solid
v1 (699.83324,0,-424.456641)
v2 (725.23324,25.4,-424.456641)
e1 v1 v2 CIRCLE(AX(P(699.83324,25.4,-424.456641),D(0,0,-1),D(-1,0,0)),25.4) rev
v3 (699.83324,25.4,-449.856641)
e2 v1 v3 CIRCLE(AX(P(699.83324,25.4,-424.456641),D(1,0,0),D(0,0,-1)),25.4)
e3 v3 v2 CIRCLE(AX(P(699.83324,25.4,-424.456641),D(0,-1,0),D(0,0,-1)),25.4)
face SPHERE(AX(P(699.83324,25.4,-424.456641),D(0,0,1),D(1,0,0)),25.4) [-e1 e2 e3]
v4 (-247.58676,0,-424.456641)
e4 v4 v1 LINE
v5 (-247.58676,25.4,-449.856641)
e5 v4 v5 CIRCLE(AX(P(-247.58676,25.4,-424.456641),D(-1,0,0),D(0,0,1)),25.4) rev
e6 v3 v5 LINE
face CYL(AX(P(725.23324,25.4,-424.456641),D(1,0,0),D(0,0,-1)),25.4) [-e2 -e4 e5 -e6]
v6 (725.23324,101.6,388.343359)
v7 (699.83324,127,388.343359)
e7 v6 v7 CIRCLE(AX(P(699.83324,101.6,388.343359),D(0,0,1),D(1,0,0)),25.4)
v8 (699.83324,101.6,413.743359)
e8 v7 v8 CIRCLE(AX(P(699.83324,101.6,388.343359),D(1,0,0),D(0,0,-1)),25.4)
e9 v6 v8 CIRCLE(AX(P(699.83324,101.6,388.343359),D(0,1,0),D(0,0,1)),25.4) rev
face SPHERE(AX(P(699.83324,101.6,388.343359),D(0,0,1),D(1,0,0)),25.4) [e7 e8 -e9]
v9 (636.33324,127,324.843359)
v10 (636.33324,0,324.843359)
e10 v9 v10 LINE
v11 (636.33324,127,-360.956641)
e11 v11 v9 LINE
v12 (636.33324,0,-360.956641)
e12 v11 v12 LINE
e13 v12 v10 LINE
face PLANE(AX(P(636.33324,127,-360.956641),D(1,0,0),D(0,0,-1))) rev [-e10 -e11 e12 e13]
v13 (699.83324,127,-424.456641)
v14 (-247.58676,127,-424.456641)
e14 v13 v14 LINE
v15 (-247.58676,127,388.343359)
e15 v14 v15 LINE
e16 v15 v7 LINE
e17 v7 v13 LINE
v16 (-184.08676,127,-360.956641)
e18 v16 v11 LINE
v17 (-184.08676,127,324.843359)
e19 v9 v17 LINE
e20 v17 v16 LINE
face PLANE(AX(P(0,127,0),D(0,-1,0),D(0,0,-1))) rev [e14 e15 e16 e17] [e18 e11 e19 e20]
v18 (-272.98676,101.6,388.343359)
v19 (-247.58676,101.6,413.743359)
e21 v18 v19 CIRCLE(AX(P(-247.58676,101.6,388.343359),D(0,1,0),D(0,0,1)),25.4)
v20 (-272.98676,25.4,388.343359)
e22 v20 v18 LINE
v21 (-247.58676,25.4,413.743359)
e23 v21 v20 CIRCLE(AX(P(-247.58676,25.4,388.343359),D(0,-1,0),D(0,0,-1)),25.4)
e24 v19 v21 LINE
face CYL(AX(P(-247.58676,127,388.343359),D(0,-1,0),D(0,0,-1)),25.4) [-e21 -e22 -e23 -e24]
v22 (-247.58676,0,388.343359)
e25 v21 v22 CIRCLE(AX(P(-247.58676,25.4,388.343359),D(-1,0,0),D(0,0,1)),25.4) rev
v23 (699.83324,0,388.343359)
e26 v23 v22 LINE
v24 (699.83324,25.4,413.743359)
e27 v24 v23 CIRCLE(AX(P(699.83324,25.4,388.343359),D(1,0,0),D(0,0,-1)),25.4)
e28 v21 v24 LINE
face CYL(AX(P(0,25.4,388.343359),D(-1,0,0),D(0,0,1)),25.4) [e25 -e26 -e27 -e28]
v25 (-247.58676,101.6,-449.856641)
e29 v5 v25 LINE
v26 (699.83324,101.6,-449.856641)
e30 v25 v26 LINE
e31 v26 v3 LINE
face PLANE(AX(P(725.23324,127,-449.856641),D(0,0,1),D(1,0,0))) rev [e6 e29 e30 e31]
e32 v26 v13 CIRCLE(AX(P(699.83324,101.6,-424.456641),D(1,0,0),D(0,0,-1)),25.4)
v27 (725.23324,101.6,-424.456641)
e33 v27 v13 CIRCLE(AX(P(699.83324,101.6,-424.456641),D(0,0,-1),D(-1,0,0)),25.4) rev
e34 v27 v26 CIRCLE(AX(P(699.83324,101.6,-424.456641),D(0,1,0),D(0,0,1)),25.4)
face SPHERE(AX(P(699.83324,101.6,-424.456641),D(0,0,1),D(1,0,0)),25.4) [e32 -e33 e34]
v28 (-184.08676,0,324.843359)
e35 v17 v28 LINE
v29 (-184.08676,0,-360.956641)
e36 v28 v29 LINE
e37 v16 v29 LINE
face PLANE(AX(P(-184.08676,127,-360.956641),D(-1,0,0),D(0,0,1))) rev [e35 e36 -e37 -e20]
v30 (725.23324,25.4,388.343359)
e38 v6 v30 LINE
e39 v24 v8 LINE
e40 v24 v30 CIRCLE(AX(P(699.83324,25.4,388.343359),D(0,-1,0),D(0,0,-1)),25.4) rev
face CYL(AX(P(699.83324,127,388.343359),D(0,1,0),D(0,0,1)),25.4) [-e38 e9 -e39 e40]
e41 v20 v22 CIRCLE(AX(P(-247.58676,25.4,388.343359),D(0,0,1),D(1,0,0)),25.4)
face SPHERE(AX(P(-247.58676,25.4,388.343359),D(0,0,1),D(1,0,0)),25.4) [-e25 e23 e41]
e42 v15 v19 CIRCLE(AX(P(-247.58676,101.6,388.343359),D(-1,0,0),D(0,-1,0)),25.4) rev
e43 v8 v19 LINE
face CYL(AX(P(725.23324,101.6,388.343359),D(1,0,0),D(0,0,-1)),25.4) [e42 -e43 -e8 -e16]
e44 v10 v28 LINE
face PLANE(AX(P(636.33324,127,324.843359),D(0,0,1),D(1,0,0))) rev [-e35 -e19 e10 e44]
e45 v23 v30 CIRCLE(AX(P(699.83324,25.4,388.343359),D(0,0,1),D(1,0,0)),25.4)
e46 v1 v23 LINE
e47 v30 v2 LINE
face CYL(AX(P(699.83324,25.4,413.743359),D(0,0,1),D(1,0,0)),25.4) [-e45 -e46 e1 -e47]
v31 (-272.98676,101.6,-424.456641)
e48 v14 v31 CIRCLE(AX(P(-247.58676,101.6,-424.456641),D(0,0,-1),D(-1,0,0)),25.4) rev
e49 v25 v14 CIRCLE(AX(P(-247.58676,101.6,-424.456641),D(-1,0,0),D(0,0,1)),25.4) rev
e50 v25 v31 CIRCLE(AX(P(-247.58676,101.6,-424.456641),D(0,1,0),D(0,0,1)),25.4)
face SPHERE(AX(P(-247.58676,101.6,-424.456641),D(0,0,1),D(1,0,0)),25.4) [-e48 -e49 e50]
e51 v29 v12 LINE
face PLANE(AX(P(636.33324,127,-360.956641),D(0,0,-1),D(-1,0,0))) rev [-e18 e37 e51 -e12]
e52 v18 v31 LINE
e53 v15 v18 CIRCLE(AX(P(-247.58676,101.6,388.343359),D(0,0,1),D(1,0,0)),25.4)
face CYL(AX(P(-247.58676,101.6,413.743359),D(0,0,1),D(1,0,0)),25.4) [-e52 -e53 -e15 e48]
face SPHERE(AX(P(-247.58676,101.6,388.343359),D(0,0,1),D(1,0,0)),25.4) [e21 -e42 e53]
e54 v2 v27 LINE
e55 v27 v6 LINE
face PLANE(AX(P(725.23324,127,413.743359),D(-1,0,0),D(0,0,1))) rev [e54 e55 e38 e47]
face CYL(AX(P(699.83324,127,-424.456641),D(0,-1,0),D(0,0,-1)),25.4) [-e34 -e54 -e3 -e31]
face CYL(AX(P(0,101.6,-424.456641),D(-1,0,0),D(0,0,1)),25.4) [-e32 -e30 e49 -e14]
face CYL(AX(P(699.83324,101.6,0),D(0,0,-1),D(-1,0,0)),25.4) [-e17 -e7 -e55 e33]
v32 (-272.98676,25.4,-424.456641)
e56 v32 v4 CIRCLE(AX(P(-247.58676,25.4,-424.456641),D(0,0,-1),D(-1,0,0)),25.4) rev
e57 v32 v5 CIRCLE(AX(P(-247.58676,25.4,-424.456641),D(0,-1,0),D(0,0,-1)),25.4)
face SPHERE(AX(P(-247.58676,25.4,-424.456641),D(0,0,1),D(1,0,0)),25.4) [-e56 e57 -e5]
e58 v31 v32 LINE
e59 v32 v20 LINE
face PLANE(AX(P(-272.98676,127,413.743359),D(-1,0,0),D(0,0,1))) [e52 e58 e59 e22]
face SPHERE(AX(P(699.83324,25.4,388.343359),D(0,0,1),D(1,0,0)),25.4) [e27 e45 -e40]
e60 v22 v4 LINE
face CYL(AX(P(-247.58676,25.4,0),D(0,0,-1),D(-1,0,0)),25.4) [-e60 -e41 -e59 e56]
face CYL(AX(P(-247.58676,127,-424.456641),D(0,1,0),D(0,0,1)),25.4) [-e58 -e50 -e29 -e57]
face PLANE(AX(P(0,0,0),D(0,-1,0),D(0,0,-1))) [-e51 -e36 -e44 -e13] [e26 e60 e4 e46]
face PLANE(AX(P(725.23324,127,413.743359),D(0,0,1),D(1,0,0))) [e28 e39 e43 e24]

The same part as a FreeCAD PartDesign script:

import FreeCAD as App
import Part
import Sketcher

V = App.Vector
Q = App.Units.Quantity


def edges_at(feature, points):
    """Names of the edges that pass closest to the given points."""
    edges = feature.Shape.Edges
    near = lambda p: min(range(len(edges)), key=lambda i: edges[i].distToShape(Part.Vertex(*p))[0])
    return sorted({f"Edge{near(p) + 1}" for p in points})


def add_polygon(sketch, points):
    """Adds a closed chain of lines whose ends are joined by coincident constraints."""
    first, n = sketch.GeometryCount, len(points)
    for a, b in zip(points, points[1:] + points[:1]):
        sketch.addGeometry(Part.LineSegment(App.Vector(*a, 0), App.Vector(*b, 0)), False)
    for i in range(n):
        sketch.addConstraint(Sketcher.Constraint("Coincident", first + i, 2, first + (i + 1) % n, 1))

doc = App.newDocument("Part")
body = doc.addObject("PartDesign::Body", "Body")

# Sketch on XZ plane
sketch1 = body.newObject("Sketcher::SketchObject", "Sketch")
sketch1.AttachmentSupport = (doc.getObject("XZ_Plane"), [""])
sketch1.MapMode = "FlatFace"
add_polygon(sketch1, [(-273, -450), (-273, 414), (725, 414), (725, -450)])  # lines 0-3
sketch1.addConstraint([
    Sketcher.Constraint("Vertical", 0),
    Sketcher.Constraint("Horizontal", 1),
    Sketcher.Constraint("Vertical", 2),
    Sketcher.Constraint("Horizontal", 3),
    Sketcher.Constraint("DistanceY", 0, 1, 0, 2, Q("34 in")),
    Sketcher.Constraint("DistanceX", 1, 1, 1, 2, Q("39.3 in")),
    Sketcher.Constraint("DistanceX", 0, 2, -1, 1, Q("272.98676 mm")),
    Sketcher.Constraint("DistanceY", -1, 1, 0, 2, Q("413.743359 mm")),
])
pad1 = body.newObject("PartDesign::Pad", "Pad")
pad1.Profile = sketch1
pad1.Length = Q("5 in")
pad1.Reversed = True

# Sketch on XZ plane
sketch2 = body.newObject("Sketcher::SketchObject", "Sketch001")
sketch2.AttachmentSupport = (doc.getObject("XZ_Plane"), [""])
sketch2.MapMode = "FlatFace"
add_polygon(sketch2, [(-184, 325), (-184, -361), (636, -361), (636, 325)])  # lines 0-3
sketch2.addConstraint([
    Sketcher.Constraint("Vertical", 0),
    Sketcher.Constraint("Horizontal", 1),
    Sketcher.Constraint("Vertical", 2),
    Sketcher.Constraint("Horizontal", 3),
    Sketcher.Constraint("DistanceY", 0, 2, 0, 1, Q("27 in")),
    Sketcher.Constraint("DistanceX", 1, 1, 1, 2, Q("32.3 in")),
    Sketcher.Constraint("DistanceX", 0, 2, -1, 1, Q("184.08676 mm")),
    Sketcher.Constraint("DistanceY", 0, 2, -1, 1, Q("360.956641 mm")),
])
pocket1 = body.newObject("PartDesign::Pocket", "Pocket")
pocket1.Profile = sketch2
pocket1.Length = Q("5 in")
doc.recompute()

fillet = body.newObject("PartDesign::Fillet", "Fillet")
fillet.Base = (pocket1, edges_at(pocket1, [
    (-272.987, 63.5, 413.743),
    (-272.987, 63.5, -449.857),
    (-272.987, 0, -18.057),
    (-272.987, 127, -18.057),
    (725.233, 63.5, 413.743),
    (226.123, 0, 413.743),
    (226.123, 127, 413.743),
    (725.233, 63.5, -449.857),
    (226.123, 0, -449.857),
    (226.123, 127, -449.857),
    (725.233, 0, -18.057),
    (725.233, 127, -18.057),
]))
fillet.Radius = Q("1 in")

doc.recompute()
